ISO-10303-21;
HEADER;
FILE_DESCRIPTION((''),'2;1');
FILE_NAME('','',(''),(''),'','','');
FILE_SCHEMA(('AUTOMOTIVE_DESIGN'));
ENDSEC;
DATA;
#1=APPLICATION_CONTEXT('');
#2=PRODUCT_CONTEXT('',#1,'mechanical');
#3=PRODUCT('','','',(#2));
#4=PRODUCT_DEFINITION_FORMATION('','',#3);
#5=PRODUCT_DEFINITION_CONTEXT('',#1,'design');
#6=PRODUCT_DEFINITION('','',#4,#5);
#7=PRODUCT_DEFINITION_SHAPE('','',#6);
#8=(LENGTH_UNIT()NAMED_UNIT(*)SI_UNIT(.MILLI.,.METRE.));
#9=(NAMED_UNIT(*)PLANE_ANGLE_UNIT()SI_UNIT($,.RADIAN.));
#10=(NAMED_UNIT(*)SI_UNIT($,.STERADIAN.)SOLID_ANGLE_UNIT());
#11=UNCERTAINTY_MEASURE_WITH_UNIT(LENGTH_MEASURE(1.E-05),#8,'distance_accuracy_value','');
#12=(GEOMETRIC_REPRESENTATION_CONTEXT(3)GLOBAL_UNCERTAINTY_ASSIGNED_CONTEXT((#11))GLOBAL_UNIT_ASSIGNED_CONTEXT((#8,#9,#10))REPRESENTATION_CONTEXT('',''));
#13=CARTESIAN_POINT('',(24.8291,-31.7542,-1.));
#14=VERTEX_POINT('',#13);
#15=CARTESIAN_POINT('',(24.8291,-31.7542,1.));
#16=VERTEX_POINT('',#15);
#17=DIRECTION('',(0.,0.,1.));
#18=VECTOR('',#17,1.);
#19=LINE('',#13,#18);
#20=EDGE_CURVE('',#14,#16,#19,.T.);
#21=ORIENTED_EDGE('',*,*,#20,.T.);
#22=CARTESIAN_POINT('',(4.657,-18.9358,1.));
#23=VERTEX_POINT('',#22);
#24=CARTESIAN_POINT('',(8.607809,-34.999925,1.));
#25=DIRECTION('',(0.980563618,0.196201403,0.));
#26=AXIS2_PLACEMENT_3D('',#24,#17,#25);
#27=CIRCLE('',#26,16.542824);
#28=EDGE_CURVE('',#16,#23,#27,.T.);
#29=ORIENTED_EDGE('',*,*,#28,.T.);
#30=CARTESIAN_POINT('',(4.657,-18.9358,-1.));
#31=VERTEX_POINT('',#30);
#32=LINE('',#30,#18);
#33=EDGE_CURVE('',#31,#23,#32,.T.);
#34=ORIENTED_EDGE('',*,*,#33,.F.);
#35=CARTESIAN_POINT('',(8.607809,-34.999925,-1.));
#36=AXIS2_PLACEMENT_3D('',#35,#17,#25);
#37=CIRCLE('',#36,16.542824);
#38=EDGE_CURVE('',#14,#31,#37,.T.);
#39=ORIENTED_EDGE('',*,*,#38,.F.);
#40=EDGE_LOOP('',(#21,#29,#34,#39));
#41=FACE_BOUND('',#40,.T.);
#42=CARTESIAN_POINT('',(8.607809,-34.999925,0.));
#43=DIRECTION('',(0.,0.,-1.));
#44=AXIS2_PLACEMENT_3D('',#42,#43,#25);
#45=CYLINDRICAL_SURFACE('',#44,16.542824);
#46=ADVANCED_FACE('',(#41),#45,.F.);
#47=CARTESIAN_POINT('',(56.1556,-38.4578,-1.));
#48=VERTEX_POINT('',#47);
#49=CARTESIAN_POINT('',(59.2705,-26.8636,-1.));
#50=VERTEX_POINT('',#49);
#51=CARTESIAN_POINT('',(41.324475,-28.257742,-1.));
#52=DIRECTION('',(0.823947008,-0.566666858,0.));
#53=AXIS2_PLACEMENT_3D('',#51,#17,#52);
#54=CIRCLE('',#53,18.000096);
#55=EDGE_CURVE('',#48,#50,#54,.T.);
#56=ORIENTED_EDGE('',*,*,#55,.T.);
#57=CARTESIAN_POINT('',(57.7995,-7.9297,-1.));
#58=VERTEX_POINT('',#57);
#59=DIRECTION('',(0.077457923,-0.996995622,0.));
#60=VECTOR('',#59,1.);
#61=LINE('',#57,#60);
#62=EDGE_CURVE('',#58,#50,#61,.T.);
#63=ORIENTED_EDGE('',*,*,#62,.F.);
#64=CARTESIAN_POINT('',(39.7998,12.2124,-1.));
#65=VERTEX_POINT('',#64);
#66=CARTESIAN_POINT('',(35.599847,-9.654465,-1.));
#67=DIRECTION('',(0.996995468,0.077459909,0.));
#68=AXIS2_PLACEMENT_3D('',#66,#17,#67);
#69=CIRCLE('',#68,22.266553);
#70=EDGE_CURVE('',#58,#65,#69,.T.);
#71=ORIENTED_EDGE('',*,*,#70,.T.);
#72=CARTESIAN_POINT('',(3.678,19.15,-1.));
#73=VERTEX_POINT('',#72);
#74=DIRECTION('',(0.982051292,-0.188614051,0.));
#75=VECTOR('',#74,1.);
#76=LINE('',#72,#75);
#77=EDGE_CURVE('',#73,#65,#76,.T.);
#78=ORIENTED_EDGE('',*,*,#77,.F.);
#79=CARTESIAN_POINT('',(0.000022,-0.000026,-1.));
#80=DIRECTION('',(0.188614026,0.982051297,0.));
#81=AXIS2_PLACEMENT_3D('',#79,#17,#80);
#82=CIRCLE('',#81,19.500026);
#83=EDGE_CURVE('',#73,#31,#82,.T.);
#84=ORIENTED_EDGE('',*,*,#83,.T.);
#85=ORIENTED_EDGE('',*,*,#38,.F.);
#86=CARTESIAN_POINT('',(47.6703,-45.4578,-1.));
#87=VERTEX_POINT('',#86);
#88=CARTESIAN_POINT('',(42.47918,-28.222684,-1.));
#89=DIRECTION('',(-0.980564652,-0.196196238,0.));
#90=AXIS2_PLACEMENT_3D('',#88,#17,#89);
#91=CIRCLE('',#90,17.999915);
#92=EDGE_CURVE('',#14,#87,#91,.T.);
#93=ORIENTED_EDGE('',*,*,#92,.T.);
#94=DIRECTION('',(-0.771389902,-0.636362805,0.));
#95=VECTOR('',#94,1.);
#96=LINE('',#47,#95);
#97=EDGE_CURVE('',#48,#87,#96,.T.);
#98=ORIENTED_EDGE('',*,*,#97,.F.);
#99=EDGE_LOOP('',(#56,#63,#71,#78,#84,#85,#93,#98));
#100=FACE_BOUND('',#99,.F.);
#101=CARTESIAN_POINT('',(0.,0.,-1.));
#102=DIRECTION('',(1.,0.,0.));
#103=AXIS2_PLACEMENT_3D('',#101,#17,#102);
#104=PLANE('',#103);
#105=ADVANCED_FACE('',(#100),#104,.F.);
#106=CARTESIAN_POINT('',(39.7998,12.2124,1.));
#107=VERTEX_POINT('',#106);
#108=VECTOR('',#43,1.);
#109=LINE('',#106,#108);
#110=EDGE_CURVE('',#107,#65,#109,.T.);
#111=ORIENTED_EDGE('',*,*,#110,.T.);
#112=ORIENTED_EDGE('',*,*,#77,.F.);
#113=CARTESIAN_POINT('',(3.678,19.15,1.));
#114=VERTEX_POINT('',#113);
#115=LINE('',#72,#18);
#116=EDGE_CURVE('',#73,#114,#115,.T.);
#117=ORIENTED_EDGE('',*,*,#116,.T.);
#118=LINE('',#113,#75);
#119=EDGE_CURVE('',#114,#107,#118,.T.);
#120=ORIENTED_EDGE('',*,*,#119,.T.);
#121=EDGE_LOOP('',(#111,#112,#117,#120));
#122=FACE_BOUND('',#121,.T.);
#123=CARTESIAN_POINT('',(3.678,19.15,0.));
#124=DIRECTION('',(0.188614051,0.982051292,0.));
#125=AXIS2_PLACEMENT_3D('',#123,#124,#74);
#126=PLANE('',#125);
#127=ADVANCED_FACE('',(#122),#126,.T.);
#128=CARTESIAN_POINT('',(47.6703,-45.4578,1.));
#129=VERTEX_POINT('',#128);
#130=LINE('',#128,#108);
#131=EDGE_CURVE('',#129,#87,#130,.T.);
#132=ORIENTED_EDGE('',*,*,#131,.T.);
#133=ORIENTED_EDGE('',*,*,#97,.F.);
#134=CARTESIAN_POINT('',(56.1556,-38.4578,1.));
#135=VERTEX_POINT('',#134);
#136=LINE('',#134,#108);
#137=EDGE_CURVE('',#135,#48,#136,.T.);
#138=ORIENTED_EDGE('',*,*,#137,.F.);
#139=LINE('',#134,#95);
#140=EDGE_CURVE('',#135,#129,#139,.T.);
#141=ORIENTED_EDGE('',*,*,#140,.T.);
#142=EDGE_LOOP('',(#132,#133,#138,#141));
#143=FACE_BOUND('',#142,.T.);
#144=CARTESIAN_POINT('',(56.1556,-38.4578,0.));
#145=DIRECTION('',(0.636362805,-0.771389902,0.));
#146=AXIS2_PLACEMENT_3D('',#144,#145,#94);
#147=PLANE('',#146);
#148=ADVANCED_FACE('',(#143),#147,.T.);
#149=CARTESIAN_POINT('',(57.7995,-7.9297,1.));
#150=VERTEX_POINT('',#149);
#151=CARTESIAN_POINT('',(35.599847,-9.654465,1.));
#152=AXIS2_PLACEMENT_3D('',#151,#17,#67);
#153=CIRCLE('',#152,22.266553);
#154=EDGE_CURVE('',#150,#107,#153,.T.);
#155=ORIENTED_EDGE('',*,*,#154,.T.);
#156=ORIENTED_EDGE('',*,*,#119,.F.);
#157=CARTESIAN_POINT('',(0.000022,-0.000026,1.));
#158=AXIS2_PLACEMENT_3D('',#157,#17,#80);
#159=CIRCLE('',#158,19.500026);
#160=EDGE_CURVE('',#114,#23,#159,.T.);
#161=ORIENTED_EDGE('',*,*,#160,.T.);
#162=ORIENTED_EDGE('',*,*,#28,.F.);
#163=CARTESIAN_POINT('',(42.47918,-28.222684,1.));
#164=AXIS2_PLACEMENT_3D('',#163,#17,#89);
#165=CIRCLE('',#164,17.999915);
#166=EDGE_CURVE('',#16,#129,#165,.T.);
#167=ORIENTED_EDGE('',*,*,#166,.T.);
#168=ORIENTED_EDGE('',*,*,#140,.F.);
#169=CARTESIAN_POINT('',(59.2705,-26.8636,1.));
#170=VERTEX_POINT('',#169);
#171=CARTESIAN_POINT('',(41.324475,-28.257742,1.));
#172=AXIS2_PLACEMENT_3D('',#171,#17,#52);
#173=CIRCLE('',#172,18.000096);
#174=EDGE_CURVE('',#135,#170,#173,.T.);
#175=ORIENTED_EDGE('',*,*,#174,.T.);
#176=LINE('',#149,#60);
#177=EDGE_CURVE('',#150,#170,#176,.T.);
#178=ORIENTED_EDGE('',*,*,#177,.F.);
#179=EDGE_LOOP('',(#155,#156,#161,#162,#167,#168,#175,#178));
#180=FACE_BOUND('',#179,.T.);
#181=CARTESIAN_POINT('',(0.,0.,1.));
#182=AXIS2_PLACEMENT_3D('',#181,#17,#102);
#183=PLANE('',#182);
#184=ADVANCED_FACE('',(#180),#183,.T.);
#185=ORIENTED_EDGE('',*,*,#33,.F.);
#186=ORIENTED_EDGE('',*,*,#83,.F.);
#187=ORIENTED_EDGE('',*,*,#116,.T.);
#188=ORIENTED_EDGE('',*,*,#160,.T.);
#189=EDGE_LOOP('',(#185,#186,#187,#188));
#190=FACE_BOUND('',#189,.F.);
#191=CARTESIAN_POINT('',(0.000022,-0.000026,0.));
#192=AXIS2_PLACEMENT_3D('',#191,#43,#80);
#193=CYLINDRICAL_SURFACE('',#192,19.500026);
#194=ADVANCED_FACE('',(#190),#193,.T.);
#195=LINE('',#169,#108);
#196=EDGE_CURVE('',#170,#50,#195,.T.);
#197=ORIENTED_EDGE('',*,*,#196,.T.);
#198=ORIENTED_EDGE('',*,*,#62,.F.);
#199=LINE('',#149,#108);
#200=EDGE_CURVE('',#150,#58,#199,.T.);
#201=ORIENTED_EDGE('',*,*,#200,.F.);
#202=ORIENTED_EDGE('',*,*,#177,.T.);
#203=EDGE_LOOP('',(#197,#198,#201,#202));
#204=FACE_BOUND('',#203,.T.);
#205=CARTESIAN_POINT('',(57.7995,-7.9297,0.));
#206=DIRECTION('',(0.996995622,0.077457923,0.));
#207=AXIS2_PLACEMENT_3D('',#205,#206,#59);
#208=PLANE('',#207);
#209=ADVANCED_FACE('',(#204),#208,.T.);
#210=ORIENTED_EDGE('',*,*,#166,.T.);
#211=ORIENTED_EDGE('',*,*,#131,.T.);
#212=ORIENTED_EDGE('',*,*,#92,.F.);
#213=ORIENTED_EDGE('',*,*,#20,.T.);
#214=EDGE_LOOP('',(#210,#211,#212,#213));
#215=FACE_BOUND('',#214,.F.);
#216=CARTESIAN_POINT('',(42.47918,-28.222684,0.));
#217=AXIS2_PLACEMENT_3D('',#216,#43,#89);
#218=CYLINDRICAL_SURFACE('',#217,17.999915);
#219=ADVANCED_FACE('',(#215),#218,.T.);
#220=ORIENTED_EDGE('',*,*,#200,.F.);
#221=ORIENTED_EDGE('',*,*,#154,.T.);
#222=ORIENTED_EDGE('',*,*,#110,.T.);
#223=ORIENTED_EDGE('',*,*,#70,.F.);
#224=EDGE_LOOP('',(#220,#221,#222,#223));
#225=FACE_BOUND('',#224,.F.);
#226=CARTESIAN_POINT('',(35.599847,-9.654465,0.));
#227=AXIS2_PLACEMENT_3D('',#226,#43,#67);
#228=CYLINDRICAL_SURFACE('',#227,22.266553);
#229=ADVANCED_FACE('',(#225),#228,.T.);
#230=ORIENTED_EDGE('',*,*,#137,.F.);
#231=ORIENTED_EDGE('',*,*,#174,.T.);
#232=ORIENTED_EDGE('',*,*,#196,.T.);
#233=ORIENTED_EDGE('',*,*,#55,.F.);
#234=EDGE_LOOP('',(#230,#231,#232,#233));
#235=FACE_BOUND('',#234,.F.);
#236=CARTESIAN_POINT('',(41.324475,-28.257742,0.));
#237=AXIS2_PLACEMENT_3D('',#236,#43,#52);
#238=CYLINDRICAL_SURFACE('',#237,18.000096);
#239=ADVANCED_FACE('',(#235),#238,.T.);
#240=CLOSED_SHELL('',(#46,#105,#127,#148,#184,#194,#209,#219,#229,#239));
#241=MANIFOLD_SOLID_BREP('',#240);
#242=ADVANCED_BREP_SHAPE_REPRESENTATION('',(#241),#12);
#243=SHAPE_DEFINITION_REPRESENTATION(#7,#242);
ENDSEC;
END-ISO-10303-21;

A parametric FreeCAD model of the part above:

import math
import FreeCAD as App
import Part
import Sketcher

V = App.Vector

doc = App.newDocument("Part")
body = doc.addObject("PartDesign::Body", "Body")

# Sketch on XY plane
sketch1 = body.newObject("Sketcher::SketchObject", "Sketch")
sketch1.AttachmentSupport = (doc.getObject("XY_Plane"), [""])
sketch1.MapMode = "FlatFace"
sketch1.addGeometry(Part.LineSegment(V(40, 12, 0), V(4, 19, 0)), False)
sketch1.addGeometry(Part.ArcOfCircle(Part.Circle(V(0, 0, 0), V(0, 0, 1), 20), math.radians(79), math.radians(284)), False)
sketch1.addGeometry(Part.ArcOfCircle(Part.Circle(V(9, -35, 0), V(0, 0, 1), 17), math.radians(11), math.radians(104)), False)
sketch1.addGeometry(Part.ArcOfCircle(Part.Circle(V(42, -28, 0), V(0, 0, 1), 18), math.radians(-169), math.radians(-73)), False)
sketch1.addGeometry(Part.LineSegment(V(48, -45, 0), V(56, -38, 0)), False)
sketch1.addGeometry(Part.ArcOfCircle(Part.Circle(V(41, -28, 0), V(0, 0, 1), 18), math.radians(-35), math.radians(4)), False)
sketch1.addGeometry(Part.LineSegment(V(59, -27, 0), V(58, -8, 0)), False)
sketch1.addGeometry(Part.ArcOfCircle(Part.Circle(V(36, -10, 0), V(0, 0, 1), 22), math.radians(4), math.radians(79)), False)
sketch1.addConstraint(Sketcher.Constraint("Tangent", 0, 2, 1, 1))
sketch1.addConstraint(Sketcher.Constraint("Tangent", 1, 2, 2, 2))
sketch1.addConstraint(Sketcher.Constraint("Tangent", 2, 1, 3, 1))
sketch1.addConstraint(Sketcher.Constraint("Coincident", 3, 2, 4, 1))
sketch1.addConstraint(Sketcher.Constraint("Coincident", 4, 2, 5, 1))
sketch1.addConstraint(Sketcher.Constraint("Tangent", 5, 2, 6, 1))
sketch1.addConstraint(Sketcher.Constraint("Tangent", 6, 2, 7, 1))
sketch1.addConstraint(Sketcher.Constraint("Tangent", 7, 2, 0, 1))
sketch1.addConstraint(Sketcher.Constraint("Coincident", 1, 3, -1, 1))
sketch1.addConstraint(Sketcher.Constraint("Equal", 3, 5))
sketch1.addConstraint(Sketcher.Constraint("Radius", 3, 18.0))
sketch1.addConstraint(Sketcher.Constraint("Radius", 1, 19.5))
sketch1.addConstraint(Sketcher.Constraint("Distance", 4, 11.0))
sketch1.addConstraint(Sketcher.Constraint("DistanceY", 2, 3, -1, 1, 35.0))
sketch1.addConstraint(Sketcher.Constraint("DistanceX", -1, 1, 7, 3, 35.6))
sketch1.addConstraint(Sketcher.Constraint("DistanceY", 3, 2, 5, 3, 17.2))
sketch1.addConstraint(Sketcher.Constraint("DistanceY", -1, 1, 0, 2, 19.15))
sketch1.addConstraint(Sketcher.Constraint("Radius", 2, 16.543))
sketch1.addConstraint(Sketcher.Constraint("DistanceY", 3, 2, 4, 2, 7.0))
sketch1.addConstraint(Sketcher.Constraint("Radius", 7, 22.2664))
sketch1.addConstraint(Sketcher.Constraint("Distance", 6, 18.991))
sketch1.addConstraint(Sketcher.Constraint("DistanceY", 3, 2, -1, 1, 45.458))
pad1 = body.newObject("PartDesign::Pad", "Pad")
pad1.Profile = sketch1
pad1.Length = 2
pad1.Midplane = True

doc.recompute()
